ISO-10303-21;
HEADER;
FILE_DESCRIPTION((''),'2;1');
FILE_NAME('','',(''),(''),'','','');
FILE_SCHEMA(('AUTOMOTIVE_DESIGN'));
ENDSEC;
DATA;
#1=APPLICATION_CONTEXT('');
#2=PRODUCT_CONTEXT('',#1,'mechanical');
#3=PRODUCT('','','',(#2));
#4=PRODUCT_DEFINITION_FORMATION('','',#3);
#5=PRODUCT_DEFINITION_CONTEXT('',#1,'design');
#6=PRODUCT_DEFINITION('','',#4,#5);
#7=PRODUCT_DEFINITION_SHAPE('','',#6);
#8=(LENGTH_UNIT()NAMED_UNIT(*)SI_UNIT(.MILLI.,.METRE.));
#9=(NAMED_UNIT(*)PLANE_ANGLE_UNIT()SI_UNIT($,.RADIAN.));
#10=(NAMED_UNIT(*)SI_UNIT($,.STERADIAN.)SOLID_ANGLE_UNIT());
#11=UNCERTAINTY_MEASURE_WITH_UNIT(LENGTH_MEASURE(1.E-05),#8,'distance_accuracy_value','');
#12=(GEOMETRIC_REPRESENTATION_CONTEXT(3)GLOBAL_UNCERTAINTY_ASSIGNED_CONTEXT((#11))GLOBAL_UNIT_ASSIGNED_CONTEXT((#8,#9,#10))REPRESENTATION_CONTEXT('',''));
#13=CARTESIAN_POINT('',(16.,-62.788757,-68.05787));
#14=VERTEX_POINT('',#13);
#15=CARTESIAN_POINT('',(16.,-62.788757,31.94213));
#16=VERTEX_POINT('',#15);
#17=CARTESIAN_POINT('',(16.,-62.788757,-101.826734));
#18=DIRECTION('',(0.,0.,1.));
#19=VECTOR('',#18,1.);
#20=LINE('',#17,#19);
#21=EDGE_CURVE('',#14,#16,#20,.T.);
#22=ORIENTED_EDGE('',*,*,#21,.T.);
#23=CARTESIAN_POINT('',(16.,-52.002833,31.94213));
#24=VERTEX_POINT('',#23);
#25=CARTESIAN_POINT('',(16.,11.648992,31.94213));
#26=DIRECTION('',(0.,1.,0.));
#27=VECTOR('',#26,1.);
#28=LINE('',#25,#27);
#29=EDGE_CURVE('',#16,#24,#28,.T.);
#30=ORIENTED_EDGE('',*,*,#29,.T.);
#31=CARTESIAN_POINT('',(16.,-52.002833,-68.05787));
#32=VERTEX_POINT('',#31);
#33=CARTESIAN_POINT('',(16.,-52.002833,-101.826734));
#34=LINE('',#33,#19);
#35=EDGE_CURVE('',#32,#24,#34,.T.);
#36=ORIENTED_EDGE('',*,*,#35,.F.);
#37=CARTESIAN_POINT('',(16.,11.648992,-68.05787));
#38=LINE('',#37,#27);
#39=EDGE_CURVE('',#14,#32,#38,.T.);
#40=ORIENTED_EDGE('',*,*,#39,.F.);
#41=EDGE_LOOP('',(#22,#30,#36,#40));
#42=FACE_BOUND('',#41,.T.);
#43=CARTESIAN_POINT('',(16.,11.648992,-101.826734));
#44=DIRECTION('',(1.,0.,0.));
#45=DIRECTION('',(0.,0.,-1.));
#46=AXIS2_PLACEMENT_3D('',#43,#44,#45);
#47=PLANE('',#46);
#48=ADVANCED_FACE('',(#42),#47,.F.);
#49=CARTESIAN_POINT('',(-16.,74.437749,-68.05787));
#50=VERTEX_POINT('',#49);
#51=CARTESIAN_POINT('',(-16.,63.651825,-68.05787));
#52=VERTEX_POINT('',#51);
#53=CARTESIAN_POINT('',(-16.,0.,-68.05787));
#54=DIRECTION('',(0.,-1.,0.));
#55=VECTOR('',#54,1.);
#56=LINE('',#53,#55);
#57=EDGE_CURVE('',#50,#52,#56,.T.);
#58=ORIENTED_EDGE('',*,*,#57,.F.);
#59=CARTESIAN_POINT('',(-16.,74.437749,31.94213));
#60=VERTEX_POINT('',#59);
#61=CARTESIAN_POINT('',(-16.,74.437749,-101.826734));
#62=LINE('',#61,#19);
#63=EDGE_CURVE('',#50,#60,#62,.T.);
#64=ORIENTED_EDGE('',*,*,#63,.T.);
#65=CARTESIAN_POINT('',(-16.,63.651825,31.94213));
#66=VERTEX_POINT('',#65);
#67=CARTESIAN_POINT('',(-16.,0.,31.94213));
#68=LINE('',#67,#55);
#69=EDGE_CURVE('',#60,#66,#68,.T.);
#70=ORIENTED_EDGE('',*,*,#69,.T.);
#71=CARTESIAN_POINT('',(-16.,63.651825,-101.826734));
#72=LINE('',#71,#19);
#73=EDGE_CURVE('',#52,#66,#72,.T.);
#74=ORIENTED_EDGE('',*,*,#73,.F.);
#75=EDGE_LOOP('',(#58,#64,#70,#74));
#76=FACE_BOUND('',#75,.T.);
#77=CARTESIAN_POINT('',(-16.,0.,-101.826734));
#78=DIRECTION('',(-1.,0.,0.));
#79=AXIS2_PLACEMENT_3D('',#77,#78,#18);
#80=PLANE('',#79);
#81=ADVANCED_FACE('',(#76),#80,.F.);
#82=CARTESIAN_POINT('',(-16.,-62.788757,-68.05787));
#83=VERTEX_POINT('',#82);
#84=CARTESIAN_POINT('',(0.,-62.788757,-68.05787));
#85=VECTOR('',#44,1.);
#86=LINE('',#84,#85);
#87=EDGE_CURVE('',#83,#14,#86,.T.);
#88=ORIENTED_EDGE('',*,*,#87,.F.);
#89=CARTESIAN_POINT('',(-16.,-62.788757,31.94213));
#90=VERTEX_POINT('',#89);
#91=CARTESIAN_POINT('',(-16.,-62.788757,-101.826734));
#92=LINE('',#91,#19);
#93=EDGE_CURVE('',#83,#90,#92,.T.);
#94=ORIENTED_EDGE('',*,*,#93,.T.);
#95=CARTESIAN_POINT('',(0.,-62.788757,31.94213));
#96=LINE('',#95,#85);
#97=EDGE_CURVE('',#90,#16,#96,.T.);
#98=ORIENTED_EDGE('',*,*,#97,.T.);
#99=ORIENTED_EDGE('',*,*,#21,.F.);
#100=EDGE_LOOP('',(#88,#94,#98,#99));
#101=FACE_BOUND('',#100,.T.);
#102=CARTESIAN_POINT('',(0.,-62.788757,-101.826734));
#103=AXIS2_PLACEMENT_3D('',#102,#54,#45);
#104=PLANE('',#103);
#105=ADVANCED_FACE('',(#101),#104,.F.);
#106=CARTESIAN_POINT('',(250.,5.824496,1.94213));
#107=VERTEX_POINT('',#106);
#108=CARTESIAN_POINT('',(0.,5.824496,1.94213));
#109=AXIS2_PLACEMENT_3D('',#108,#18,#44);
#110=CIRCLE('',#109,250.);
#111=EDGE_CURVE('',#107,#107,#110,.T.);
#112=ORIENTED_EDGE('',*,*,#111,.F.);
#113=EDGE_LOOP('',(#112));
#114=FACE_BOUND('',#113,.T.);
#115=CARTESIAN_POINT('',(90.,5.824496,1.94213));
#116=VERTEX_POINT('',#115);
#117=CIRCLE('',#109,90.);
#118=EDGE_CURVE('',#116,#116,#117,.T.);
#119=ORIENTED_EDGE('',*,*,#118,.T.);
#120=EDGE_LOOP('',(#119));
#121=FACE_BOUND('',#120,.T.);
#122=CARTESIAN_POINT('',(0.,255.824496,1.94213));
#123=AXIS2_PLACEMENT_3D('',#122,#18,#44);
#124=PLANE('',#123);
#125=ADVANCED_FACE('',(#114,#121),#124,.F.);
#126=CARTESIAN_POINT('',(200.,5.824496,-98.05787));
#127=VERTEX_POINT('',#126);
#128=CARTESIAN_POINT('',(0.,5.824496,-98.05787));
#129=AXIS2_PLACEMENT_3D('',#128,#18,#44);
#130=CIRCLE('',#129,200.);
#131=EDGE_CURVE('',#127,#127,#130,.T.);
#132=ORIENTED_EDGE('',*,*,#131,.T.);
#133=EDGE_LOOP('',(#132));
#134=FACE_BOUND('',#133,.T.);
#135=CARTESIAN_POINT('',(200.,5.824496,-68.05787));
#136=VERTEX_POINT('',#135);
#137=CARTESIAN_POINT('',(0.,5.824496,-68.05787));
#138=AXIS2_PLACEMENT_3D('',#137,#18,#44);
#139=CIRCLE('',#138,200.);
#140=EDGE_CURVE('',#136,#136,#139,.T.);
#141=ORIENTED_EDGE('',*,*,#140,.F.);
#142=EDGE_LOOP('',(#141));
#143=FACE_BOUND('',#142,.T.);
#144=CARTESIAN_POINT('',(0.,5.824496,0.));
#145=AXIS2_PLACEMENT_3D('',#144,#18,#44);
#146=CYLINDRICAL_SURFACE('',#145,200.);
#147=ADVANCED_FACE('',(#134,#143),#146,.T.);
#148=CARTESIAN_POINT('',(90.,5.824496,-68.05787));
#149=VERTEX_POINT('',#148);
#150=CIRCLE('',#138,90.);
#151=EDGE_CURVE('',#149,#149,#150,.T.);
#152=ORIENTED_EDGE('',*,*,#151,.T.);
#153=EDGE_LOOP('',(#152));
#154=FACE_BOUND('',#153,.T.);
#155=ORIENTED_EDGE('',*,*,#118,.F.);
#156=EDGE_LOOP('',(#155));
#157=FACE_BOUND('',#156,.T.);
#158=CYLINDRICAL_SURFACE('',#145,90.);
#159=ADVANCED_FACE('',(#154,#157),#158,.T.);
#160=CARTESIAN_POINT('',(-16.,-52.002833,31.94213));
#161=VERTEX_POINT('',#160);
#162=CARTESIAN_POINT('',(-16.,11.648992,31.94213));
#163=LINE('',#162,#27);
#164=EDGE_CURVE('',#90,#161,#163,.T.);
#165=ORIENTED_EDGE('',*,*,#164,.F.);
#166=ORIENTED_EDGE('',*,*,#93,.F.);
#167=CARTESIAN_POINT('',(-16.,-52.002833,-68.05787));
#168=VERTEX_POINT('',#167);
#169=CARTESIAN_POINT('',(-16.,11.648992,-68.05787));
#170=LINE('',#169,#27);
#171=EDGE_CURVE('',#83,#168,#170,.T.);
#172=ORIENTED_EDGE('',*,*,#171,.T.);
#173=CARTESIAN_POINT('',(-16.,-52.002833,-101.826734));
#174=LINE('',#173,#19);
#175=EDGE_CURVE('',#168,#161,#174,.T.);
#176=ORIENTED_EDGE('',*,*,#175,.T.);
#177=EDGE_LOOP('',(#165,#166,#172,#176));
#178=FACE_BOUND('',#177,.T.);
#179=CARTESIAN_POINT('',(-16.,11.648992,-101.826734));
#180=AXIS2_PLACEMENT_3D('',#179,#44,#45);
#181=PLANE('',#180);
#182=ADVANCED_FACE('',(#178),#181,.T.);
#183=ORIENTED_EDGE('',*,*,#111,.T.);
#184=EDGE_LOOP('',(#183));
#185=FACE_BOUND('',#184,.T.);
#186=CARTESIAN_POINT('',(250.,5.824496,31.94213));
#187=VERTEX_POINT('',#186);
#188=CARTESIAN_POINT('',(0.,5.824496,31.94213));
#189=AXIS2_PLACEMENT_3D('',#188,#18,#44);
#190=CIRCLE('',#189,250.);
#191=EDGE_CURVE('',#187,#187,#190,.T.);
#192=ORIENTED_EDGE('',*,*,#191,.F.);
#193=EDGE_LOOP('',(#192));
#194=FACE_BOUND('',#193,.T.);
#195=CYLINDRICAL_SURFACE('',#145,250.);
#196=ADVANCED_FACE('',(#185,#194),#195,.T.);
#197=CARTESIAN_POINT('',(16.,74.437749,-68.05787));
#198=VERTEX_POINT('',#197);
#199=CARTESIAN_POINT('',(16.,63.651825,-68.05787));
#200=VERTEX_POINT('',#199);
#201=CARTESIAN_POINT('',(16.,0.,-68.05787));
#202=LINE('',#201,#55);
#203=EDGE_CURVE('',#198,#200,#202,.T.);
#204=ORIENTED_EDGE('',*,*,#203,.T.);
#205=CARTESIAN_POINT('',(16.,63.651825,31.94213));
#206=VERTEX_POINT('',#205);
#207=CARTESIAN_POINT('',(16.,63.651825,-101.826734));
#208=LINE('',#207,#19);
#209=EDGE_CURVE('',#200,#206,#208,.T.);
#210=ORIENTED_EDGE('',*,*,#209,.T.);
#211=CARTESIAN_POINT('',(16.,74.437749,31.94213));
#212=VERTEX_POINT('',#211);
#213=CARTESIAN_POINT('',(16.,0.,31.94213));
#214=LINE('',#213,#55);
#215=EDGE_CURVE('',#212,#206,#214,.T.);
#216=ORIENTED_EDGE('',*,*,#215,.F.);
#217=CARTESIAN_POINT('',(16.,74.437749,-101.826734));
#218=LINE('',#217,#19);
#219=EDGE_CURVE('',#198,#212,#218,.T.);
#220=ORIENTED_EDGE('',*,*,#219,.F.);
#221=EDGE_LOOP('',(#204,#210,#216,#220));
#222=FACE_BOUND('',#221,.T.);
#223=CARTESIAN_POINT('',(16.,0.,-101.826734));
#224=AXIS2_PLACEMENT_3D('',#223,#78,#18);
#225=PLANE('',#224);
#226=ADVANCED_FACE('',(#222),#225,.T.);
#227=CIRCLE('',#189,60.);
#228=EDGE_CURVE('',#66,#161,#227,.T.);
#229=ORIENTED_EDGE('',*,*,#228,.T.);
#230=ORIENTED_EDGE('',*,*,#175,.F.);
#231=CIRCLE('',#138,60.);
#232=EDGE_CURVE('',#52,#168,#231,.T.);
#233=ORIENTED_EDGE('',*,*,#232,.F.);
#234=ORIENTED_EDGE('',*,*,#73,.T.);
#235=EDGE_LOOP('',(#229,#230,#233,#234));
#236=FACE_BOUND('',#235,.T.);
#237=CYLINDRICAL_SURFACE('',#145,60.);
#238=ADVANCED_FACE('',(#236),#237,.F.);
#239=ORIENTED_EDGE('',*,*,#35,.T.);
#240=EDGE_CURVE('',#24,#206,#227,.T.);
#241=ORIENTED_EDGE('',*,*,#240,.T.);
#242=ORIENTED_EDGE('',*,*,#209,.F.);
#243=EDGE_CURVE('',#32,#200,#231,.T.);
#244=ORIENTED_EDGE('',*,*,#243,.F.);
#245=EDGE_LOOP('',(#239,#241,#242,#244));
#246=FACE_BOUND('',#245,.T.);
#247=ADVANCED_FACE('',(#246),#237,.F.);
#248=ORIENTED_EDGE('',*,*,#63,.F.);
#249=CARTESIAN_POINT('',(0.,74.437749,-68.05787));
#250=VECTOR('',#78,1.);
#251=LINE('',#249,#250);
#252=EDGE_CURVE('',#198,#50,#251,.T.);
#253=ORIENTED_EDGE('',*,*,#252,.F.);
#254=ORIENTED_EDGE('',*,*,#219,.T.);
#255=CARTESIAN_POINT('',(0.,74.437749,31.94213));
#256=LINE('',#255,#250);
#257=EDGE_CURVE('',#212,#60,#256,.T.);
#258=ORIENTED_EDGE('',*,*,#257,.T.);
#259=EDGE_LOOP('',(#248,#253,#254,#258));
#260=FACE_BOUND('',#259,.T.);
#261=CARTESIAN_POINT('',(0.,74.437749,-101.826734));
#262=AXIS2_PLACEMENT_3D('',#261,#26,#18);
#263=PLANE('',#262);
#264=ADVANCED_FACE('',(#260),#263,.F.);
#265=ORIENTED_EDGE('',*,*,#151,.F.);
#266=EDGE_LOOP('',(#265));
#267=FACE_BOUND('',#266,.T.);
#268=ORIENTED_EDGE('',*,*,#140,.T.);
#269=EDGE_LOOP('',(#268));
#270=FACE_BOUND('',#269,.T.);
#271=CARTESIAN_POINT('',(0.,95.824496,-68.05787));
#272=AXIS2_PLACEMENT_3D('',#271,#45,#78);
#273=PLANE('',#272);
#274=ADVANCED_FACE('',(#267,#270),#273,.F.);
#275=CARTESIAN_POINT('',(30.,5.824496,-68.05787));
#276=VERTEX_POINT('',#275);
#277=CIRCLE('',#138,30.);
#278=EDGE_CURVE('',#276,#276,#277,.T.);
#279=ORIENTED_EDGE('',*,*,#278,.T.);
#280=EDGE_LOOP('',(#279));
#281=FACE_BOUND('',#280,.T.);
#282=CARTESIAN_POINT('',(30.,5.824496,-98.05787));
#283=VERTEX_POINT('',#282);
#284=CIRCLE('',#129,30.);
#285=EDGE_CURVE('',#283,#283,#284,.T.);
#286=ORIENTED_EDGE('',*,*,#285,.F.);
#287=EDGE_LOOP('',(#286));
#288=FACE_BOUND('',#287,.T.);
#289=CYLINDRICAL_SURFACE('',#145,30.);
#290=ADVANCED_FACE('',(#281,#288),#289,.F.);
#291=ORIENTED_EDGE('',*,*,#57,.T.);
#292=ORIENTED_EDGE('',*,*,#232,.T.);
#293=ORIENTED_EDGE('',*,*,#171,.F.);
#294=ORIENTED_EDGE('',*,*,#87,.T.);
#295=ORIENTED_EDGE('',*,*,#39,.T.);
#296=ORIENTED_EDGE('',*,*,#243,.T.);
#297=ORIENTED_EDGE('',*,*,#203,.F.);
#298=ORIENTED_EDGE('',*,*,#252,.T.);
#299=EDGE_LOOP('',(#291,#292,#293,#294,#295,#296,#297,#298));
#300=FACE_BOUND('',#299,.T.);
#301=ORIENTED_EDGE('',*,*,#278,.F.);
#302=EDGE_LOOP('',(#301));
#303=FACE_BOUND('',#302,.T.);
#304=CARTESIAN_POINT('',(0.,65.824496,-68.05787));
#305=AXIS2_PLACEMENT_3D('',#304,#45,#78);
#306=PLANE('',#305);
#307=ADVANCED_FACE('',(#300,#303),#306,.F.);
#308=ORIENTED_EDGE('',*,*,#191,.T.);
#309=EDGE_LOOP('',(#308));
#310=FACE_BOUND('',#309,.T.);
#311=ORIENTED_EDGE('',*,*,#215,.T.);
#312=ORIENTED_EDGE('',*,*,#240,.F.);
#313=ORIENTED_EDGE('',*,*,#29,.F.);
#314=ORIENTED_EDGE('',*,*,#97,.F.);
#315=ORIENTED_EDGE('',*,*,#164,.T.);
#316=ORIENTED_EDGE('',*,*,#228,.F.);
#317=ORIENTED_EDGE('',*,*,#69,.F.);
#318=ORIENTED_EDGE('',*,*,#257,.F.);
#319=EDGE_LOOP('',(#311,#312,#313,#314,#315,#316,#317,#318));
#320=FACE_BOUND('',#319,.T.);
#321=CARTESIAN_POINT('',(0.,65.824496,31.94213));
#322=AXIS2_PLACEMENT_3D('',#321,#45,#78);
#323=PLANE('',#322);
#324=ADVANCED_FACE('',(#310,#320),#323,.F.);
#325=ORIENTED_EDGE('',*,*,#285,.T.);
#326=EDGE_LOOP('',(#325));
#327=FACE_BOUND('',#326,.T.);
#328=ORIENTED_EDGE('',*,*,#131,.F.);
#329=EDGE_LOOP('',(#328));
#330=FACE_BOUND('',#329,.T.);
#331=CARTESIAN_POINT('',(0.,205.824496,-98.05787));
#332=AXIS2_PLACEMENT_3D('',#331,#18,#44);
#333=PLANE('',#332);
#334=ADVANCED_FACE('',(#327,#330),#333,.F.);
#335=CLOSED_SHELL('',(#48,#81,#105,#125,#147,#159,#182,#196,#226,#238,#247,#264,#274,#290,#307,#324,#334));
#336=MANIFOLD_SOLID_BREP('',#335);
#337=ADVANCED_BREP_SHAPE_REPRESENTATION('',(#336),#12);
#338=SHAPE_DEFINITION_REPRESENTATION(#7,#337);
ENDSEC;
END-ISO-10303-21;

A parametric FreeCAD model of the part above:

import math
import FreeCAD as App
import Part
import Sketcher
from FreeCAD import Vector
Q = App.Units.Quantity

doc = App.newDocument("Part")
body = doc.addObject("PartDesign::Body", "Body")

sketch1 = body.newObject("Sketcher::SketchObject", "Sketch")
sketch1.AttachmentSupport = (doc.getObject("YZ_Plane"), [""])
sketch1.MapMode = "FlatFace"
sketch1.addGeometry(Part.LineSegment(Vector(256, 32, 0), Vector(66, 32, 0)), False)
sketch1.addGeometry(Part.LineSegment(Vector(66, 32, 0), Vector(66, -68, 0)), False)
sketch1.addGeometry(Part.LineSegment(Vector(66, -68, 0), Vector(36, -68, 0)), False)
sketch1.addGeometry(Part.LineSegment(Vector(36, -68, 0), Vector(36, -98, 0)), False)
sketch1.addGeometry(Part.LineSegment(Vector(36, -98, 0), Vector(206, -98, 0)), False)
sketch1.addGeometry(Part.LineSegment(Vector(206, -98, 0), Vector(206, -68, 0)), False)
sketch1.addGeometry(Part.LineSegment(Vector(206, -68, 0), Vector(96, -68, 0)), False)
sketch1.addGeometry(Part.LineSegment(Vector(96, -68, 0), Vector(96, 2, 0)), False)
sketch1.addGeometry(Part.LineSegment(Vector(96, 2, 0), Vector(256, 2, 0)), False)
sketch1.addGeometry(Part.LineSegment(Vector(256, 2, 0), Vector(256, 32, 0)), False)
sketch1.addGeometry(Part.LineSegment(Vector(6, 32, 0), Vector(6, -98, 0)), True)
sketch1.addConstraint(Sketcher.Constraint("Coincident", 0, 2, 1, 1))
sketch1.addConstraint(Sketcher.Constraint("Coincident", 1, 2, 2, 1))
sketch1.addConstraint(Sketcher.Constraint("Coincident", 2, 2, 3, 1))
sketch1.addConstraint(Sketcher.Constraint("Coincident", 3, 2, 4, 1))
sketch1.addConstraint(Sketcher.Constraint("Coincident", 4, 2, 5, 1))
sketch1.addConstraint(Sketcher.Constraint("Coincident", 5, 2, 6, 1))
sketch1.addConstraint(Sketcher.Constraint("Coincident", 6, 2, 7, 1))
sketch1.addConstraint(Sketcher.Constraint("Coincident", 7, 2, 8, 1))
sketch1.addConstraint(Sketcher.Constraint("Coincident", 8, 2, 9, 1))
sketch1.addConstraint(Sketcher.Constraint("Coincident", 9, 2, 0, 1))
sketch1.addConstraint(Sketcher.Constraint("Horizontal", 0))
sketch1.addConstraint(Sketcher.Constraint("Vertical", 1))
sketch1.addConstraint(Sketcher.Constraint("Horizontal", 2))
sketch1.addConstraint(Sketcher.Constraint("Vertical", 3))
sketch1.addConstraint(Sketcher.Constraint("Horizontal", 4))
sketch1.addConstraint(Sketcher.Constraint("Vertical", 5))
sketch1.addConstraint(Sketcher.Constraint("Horizontal", 6))
sketch1.addConstraint(Sketcher.Constraint("Vertical", 7))
sketch1.addConstraint(Sketcher.Constraint("Horizontal", 8))
sketch1.addConstraint(Sketcher.Constraint("Vertical", 9))
sketch1.addConstraint(Sketcher.Constraint("Vertical", 10))
sketch1.addConstraint(Sketcher.Constraint("Horizontal", 2, 2, 5, 2))
sketch1.addConstraint(Sketcher.Constraint("Horizontal", 9, 2, 10, 1))
sketch1.addConstraint(Sketcher.Constraint("Horizontal", 4, 2, 10, 2))
sketch1.addConstraint(Sketcher.Constraint("Equal", 2, 3))
sketch1.addConstraint(Sketcher.Constraint("Equal", 5, 9))
sketch1.addConstraint(Sketcher.Constraint("DistanceX", 0, 2, 0, 1, Q("190 mm")))
sketch1.addConstraint(Sketcher.Constraint("DistanceX", 2, 2, 2, 1, Q("30 mm")))
sketch1.addConstraint(Sketcher.Constraint("DistanceX", 4, 1, 4, 2, Q("170 mm")))
sketch1.addConstraint(Sketcher.Constraint("DistanceX", 6, 2, 6, 1, Q("110 mm")))
sketch1.addConstraint(Sketcher.Constraint("DistanceY", 1, 2, 1, 1, Q("100 mm")))
sketch1.addConstraint(Sketcher.Constraint("DistanceX", 10, 1, 0, 2, Q("60 mm")))
sketch1.addConstraint(Sketcher.Constraint("DistanceY", -1, 1, 0, 2, Q("31.94213 mm")))
sketch1.addConstraint(Sketcher.Constraint("DistanceX", -1, 1, 0, 2, Q("65.824496 mm")))
revolution = body.newObject("PartDesign::Revolution", "Revolution")
revolution.Profile = sketch1
revolution.ReferenceAxis = (sketch1, ["Axis0"])
revolution.Angle = 360

sketch2 = body.newObject("Sketcher::SketchObject", "Sketch001")
sketch2.AttachmentSupport = (doc.getObject("XY_Plane"), [""])
sketch2.MapMode = "FlatFace"
sketch2.AttachmentOffset = App.Placement(Vector(0, 0, 31.94213), App.Rotation())
sketch2.addGeometry(Part.LineSegment(Vector(16, 64, 0), Vector(16, 74, 0)), False)
sketch2.addGeometry(Part.LineSegment(Vector(16, 74, 0), Vector(-16, 74, 0)), False)
sketch2.addGeometry(Part.LineSegment(Vector(-16, 74, 0), Vector(-16, 64, 0)), False)
sketch2.addGeometry(Part.ArcOfCircle(Part.Circle(Vector(0, 6, 0), Vector(0, 0, 1), 60), math.radians(75), math.radians(105)), False)
sketch2.addConstraint(Sketcher.Constraint("Coincident", 0, 2, 1, 1))
sketch2.addConstraint(Sketcher.Constraint("Coincident", 1, 2, 2, 1))
sketch2.addConstraint(Sketcher.Constraint("Coincident", 2, 2, 3, 2))
sketch2.addConstraint(Sketcher.Constraint("Coincident", 3, 1, 0, 1))
sketch2.addConstraint(Sketcher.Constraint("Vertical", 0))
sketch2.addConstraint(Sketcher.Constraint("Horizontal", 1))
sketch2.addConstraint(Sketcher.Constraint("Vertical", 2))
sketch2.addConstraint(Sketcher.Constraint("Symmetric", 2, 2, 3, 1, -2))
sketch2.addConstraint(Sketcher.Constraint("Radius", 3, Q("60 mm")))
sketch2.addConstraint(Sketcher.Constraint("DistanceX", 1, 2, 1, 1, Q("32 mm")))
sketch2.addConstraint(Sketcher.Constraint("DistanceY", 0, 1, 0, 2, Q("10.785924 mm")))
sketch2.addConstraint(Sketcher.Constraint("DistanceY", -1, 1, 0, 2, Q("74.437749 mm")))
pocket1 = body.newObject("PartDesign::Pocket", "Pocket")
pocket1.Profile = sketch2
pocket1.Length = 100
doc.recompute()

datumline = body.newObject("PartDesign::Line", "DatumLine")
datumline.Placement = App.Placement(Vector(0, 5.824496, 0), App.Rotation(Vector(0, 0, 1), Vector(0, 0, 1)))
polarpattern = body.newObject("PartDesign::PolarPattern", "PolarPattern")
polarpattern.Originals = [pocket1]
polarpattern.Axis = (datumline, [""])
polarpattern.Angle = 360
polarpattern.Occurrences = 2
body.Tip = polarpattern

doc.recompute()
